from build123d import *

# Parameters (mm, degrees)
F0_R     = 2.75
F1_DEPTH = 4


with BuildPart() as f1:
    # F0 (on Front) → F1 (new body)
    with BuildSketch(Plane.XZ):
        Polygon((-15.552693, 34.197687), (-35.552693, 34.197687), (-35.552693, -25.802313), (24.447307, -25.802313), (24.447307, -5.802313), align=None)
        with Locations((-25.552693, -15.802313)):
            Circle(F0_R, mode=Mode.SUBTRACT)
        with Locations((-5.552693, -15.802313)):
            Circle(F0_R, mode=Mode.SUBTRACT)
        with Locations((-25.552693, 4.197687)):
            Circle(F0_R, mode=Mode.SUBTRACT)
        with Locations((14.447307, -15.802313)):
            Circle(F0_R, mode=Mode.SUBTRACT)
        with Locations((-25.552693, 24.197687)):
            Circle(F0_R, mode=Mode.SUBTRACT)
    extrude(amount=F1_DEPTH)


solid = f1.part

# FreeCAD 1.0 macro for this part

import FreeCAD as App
import Part
import Sketcher
Q = App.Units.Quantity

doc = App.newDocument("Part")
body = doc.addObject("PartDesign::Body", "Body")

# Sketch on XZ plane
sketch1 = body.newObject("Sketcher::SketchObject", "Sketch")
sketch1.AttachmentSupport = (doc.getObject("XZ_Plane"), [""])
sketch1.MapMode = "FlatFace"
sketch1.addGeometry([
    Part.LineSegment(App.Vector(-15.6, 34.2, 0), App.Vector(-35.6, 34.2, 0)),  # 0
    Part.LineSegment(App.Vector(-35.6, 34.2, 0), App.Vector(-35.6, -25.8, 0)),  # 1
    Part.LineSegment(App.Vector(-35.6, -25.8, 0), App.Vector(24.4, -25.8, 0)),  # 2
    Part.LineSegment(App.Vector(24.4, -25.8, 0), App.Vector(24.4, -5.8, 0)),  # 3
    Part.LineSegment(App.Vector(24.4, -5.8, 0), App.Vector(-15.6, 34.2, 0)),  # 4
    Part.Circle(App.Vector(-25.6, -15.8, 0), App.Vector(0, 0, 1), 2.8),  # 5
    Part.Circle(App.Vector(-5.6, -15.8, 0), App.Vector(0, 0, 1), 2.8),  # 6
    Part.Circle(App.Vector(14.4, -15.8, 0), App.Vector(0, 0, 1), 2.8),  # 7
    Part.Circle(App.Vector(-25.6, 4.2, 0), App.Vector(0, 0, 1), 2.8),  # 8
    Part.Circle(App.Vector(-25.6, 24.2, 0), App.Vector(0, 0, 1), 2.8),  # 9
], False)
sketch1.addConstraint([
    Sketcher.Constraint("Coincident", 0, 2, 1, 1),
    Sketcher.Constraint("Coincident", 1, 2, 2, 1),
    Sketcher.Constraint("Coincident", 2, 2, 3, 1),
    Sketcher.Constraint("Coincident", 3, 2, 4, 1),
    Sketcher.Constraint("Coincident", 4, 2, 0, 1),
    Sketcher.Constraint("Horizontal", 0),
    Sketcher.Constraint("Vertical", 1),
    Sketcher.Constraint("Horizontal", 2),
    Sketcher.Constraint("Vertical", 3),
    Sketcher.Constraint("Equal", 5, 6),
    Sketcher.Constraint("Equal", 6, 7),
    Sketcher.Constraint("Equal", 7, 8),
    Sketcher.Constraint("Equal", 8, 9),
    Sketcher.Constraint("Horizontal", 5, 3, 6, 3),
    Sketcher.Constraint("Horizontal", 6, 3, 7, 3),
    Sketcher.Constraint("Vertical", 5, 3, 8, 3),
    Sketcher.Constraint("Vertical", 8, 3, 9, 3),
    Sketcher.Constraint("Equal", 2, 1),
    Sketcher.Constraint("Equal", 0, 3),
    Sketcher.Constraint("Diameter", 5, Q("5.5 mm")),
    Sketcher.Constraint("DistanceX", 0, 2, 0, 1, Q("20 mm")),
    Sketcher.Constraint("DistanceX", 2, 1, 2, 2, Q("60 mm")),
    Sketcher.Constraint("DistanceX", 5, 3, 6, 3, Q("20 mm")),
    Sketcher.Constraint("DistanceX", 6, 3, 7, 3, Q("20 mm")),
    Sketcher.Constraint("DistanceY", 5, 3, 8, 3, Q("20 mm")),
    Sketcher.Constraint("DistanceY", 8, 3, 9, 3, Q("20 mm")),
    Sketcher.Constraint("DistanceX", 0, 2, 9, 3, Q("10 mm")),
    Sketcher.Constraint("DistanceY", 9, 3, 0, 2, Q("10 mm")),
    Sketcher.Constraint("DistanceX", 5, 3, -1, 1, Q("25.552693 mm")),
    Sketcher.Constraint("DistanceY", 5, 3, -1, 1, Q("15.802313 mm")),
])
pad1 = body.newObject("PartDesign::Pad", "Pad")
pad1.Profile = sketch1
pad1.Length = 4

doc.recompute()
